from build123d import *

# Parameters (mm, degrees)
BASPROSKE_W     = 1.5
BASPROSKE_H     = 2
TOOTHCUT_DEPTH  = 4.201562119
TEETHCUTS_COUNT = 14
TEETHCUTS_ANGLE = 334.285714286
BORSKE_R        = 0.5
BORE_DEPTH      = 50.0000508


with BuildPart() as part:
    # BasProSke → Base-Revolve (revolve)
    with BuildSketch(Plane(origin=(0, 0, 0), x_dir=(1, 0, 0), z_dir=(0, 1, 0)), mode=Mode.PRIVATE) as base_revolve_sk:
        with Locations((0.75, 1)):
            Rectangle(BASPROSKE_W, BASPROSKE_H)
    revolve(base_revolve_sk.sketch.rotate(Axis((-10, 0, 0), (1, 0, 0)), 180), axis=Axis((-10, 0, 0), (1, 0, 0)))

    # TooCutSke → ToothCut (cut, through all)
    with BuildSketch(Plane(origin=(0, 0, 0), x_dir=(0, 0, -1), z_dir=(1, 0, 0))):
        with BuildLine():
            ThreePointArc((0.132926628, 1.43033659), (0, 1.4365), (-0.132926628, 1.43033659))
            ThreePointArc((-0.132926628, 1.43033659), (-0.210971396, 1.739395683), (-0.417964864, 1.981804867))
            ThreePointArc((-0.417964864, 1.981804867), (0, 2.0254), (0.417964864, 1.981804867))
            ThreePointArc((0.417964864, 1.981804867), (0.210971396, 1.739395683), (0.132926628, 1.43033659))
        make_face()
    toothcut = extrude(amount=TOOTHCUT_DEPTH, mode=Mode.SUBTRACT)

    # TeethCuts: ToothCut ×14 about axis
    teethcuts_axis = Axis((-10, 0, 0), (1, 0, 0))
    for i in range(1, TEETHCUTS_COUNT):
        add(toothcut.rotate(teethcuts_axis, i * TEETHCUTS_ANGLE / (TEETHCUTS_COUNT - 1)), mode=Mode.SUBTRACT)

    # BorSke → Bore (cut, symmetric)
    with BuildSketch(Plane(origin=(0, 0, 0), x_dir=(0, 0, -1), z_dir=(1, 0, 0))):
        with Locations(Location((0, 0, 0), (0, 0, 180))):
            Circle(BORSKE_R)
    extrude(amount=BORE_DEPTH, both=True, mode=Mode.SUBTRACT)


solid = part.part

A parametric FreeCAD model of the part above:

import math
import FreeCAD as App
import Part
import Sketcher
Q = App.Units.Quantity


def add_polygon(sketch, points):
    """Adds a closed chain of lines whose ends are joined by coincident constraints."""
    first, n = sketch.GeometryCount, len(points)
    for a, b in zip(points, points[1:] + points[:1]):
        sketch.addGeometry(Part.LineSegment(App.Vector(*a, 0), App.Vector(*b, 0)), False)
    for i in range(n):
        sketch.addConstraint(Sketcher.Constraint("Coincident", first + i, 2, first + (i + 1) % n, 1))

doc = App.newDocument("Part")
body = doc.addObject("PartDesign::Body", "Body")

sketch1 = body.newObject("Sketcher::SketchObject", "Sketch")
sketch1.AttachmentSupport = (doc.getObject("XZ_Plane"), [""])
sketch1.MapMode = "FlatFace"
add_polygon(sketch1, [(0, -2), (0, 0), (1.5, 0), (1.5, -2)])
sketch1.addConstraint([
    Sketcher.Constraint("Vertical", 0),
    Sketcher.Constraint("Horizontal", 1),
    Sketcher.Constraint("Vertical", 2),
    Sketcher.Constraint("Horizontal", 3),
    Sketcher.Constraint("Coincident", 0, 2, -1, 1),
    Sketcher.Constraint("DistanceY", 0, 1, 0, 2, Q("2 mm")),
    Sketcher.Constraint("DistanceX", 1, 1, 1, 2, Q("1.5 mm")),
])
revolution = body.newObject("PartDesign::Revolution", "Revolution")
revolution.Profile = sketch1
revolution.ReferenceAxis = (sketch1, ["H_Axis"])
revolution.Angle = 360

sketch2 = body.newObject("Sketcher::SketchObject", "Sketch001")
sketch2.AttachmentSupport = (doc.getObject("YZ_Plane"), [""])
sketch2.MapMode = "FlatFace"
sketch2.addGeometry([
    Part.ArcOfCircle(Part.Circle(App.Vector(0, 0, 0), App.Vector(0, 0, 1), 1.44), math.radians(-5.31), math.radians(5.31)),
    Part.ArcOfCircle(Part.Circle(App.Vector(1.42, -0.83, 0), App.Vector(0, 0, 1), 0.7), math.radians(36), math.radians(89)),
    Part.ArcOfCircle(Part.Circle(App.Vector(0, 0, 0), App.Vector(0, 0, 1), 2.03), math.radians(-12), math.radians(12)),
    Part.ArcOfCircle(Part.Circle(App.Vector(1.42, 0.83, 0), App.Vector(0, 0, 1), 0.7), math.radians(-89), math.radians(-36)),
], False)
sketch2.addConstraint([
    Sketcher.Constraint("Coincident", 0, 1, 1, 2),
    Sketcher.Constraint("Coincident", 1, 1, 2, 1),
    Sketcher.Constraint("Coincident", 2, 2, 3, 2),
    Sketcher.Constraint("Coincident", 3, 1, 0, 2),
    Sketcher.Constraint("Coincident", 0, 3, -1, 1),
    Sketcher.Constraint("Coincident", 2, 3, -1, 1),
    Sketcher.Constraint("Equal", 1, 3),
    Sketcher.Constraint("Symmetric", 1, 3, 3, 3, -1),
    Sketcher.Constraint("Radius", 1, Q("0.7 mm")),
    Sketcher.Constraint("Radius", 0, Q("1.4365 mm")),
    Sketcher.Constraint("Radius", 2, Q("2.0254 mm")),
    Sketcher.Constraint("DistanceX", -1, 1, 1, 3, Q("1.417981 mm")),
    Sketcher.Constraint("DistanceX", 0, 1, 1, 1, Q("0.551468 mm")),
])
pocket1 = body.newObject("PartDesign::Pocket", "Pocket")
pocket1.Profile = sketch2
pocket1.Type = "ThroughAll"
pocket1.Reversed = True
doc.recompute()

polarpattern = body.newObject("PartDesign::PolarPattern", "PolarPattern")
polarpattern.Originals = [pocket1]
polarpattern.Axis = (doc.getObject("X_Axis"), [""])
polarpattern.Angle = 360
polarpattern.Occurrences = 14
body.Tip = polarpattern

sketch3 = body.newObject("Sketcher::SketchObject", "Sketch002")
sketch3.AttachmentSupport = (doc.getObject("YZ_Plane"), [""])
sketch3.MapMode = "FlatFace"
sketch3.addGeometry(Part.Circle(App.Vector(0, 0, 0), App.Vector(0, 0, 1), 0.5), False)
sketch3.addConstraint([
    Sketcher.Constraint("Coincident", 0, 3, -1, 1),
    Sketcher.Constraint("Diameter", 0, Q("1 mm")),
])
pocket2 = body.newObject("PartDesign::Pocket", "Pocket001")
pocket2.Profile = sketch3
pocket2.Length = 100.000102
pocket2.Midplane = True

doc.recompute()
